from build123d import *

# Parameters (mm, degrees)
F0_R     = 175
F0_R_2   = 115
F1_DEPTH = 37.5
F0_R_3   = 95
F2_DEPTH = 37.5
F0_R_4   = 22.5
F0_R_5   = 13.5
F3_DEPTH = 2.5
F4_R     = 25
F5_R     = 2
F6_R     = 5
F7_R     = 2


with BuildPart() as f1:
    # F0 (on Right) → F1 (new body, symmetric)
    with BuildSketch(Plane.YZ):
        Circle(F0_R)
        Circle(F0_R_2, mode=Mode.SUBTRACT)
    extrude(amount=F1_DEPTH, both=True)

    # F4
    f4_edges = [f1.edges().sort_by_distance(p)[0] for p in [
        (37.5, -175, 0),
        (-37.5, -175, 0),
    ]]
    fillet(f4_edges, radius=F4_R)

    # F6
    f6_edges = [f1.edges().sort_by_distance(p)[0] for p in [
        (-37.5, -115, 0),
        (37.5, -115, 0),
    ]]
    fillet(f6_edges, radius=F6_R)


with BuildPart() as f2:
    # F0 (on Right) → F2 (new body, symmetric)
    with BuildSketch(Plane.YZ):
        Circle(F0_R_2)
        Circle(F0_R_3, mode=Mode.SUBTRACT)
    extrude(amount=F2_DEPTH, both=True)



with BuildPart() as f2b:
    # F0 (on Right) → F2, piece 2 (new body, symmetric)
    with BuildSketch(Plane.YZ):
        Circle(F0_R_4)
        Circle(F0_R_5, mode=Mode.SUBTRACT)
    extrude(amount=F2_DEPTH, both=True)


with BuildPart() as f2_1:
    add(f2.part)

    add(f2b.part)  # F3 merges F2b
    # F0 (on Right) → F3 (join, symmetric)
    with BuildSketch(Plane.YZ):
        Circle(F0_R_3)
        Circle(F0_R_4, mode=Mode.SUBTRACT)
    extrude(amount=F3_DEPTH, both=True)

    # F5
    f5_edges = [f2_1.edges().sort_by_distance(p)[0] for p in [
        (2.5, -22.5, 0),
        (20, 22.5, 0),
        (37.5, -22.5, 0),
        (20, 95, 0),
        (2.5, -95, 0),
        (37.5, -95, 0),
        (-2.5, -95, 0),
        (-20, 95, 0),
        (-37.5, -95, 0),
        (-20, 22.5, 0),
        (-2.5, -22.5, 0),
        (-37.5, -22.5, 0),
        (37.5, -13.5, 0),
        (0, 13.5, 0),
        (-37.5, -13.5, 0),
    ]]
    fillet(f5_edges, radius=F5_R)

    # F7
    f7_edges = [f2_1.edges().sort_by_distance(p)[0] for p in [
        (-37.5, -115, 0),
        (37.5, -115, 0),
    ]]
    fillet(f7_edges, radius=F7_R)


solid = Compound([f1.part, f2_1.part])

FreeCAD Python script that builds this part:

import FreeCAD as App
import Part
import Sketcher


def edges_at(feature, points):
    """Names of the edges that pass closest to the given points."""
    edges = feature.Shape.Edges
    near = lambda p: min(range(len(edges)), key=lambda i: edges[i].distToShape(Part.Vertex(*p))[0])
    return sorted({f"Edge{near(p) + 1}" for p in points})

doc = App.newDocument("Part")
params = doc.addObject("Spreadsheet::Sheet", "Params")
for row, (alias, value) in enumerate([
    ("sketch1_diameter", "350 mm"),
    ("sketch1_diameter2", "230 mm"),
    ("pad1_length", "75 mm"),
    ("fillet_radius", "25 mm"),
    ("fillet2_radius", "5 mm"),
    ("sketch2_diameter", "230 mm"),
    ("sketch2_diameter2", "190 mm"),
    ("pad2_length", "75 mm"),
    ("sketch3_diameter", "45 mm"),
    ("sketch3_diameter2", "27 mm"),
    ("pad3_length", "75 mm"),
    ("sketch4_diameter", "190 mm"),
    ("sketch4_diameter2", "45 mm"),
    ("pad4_length", "5 mm"),
    ("fillet3_radius", "2 mm"),
    ("fillet4_radius", "2 mm"),
], start=1):
    params.set(f"A{row}", alias)
    params.set(f"B{row}", "=" + value)
    params.setAlias(f"B{row}", alias)

body = doc.addObject("PartDesign::Body", "Body")

sketch1 = body.newObject("Sketcher::SketchObject", "Sketch")
sketch1.AttachmentSupport = (doc.getObject("YZ_Plane"), [""])
sketch1.MapMode = "FlatFace"
sketch1.addGeometry([
    Part.Circle(App.Vector(0, 0, 0), App.Vector(0, 0, 1), 175),
    Part.Circle(App.Vector(0, 0, 0), App.Vector(0, 0, 1), 115),
], False)
sketch1.addConstraint([
    Sketcher.Constraint("Coincident", 0, 3, -1, 1),
    Sketcher.Constraint("Coincident", 1, 3, -1, 1),
    Sketcher.Constraint("Diameter", 0, 350.0),
    Sketcher.Constraint("Diameter", 1, 230.0),
])
sketch1.setExpression("Constraints[2]", "Params.sketch1_diameter")
sketch1.setExpression("Constraints[3]", "Params.sketch1_diameter2")
pad1 = body.newObject("PartDesign::Pad", "Pad")
pad1.Profile = sketch1
pad1.setExpression("Length", "Params.pad1_length")
pad1.Midplane = True
doc.recompute()

fillet = body.newObject("PartDesign::Fillet", "Fillet")
fillet.Base = (pad1, edges_at(pad1, [(37.5, -175, 0), (-37.5, -175, 0)]))
fillet.setExpression("Radius", "Params.fillet_radius")
doc.recompute()

fillet2 = body.newObject("PartDesign::Fillet", "Fillet001")
fillet2.Base = (fillet, edges_at(fillet, [(-37.5, -115, 0), (37.5, -115, 0)]))
fillet2.setExpression("Radius", "Params.fillet2_radius")
body2 = doc.addObject("PartDesign::Body", "Body001")

sketch2 = body2.newObject("Sketcher::SketchObject", "Sketch001")
sketch2.AttachmentSupport = (doc.getObject("YZ_Plane001"), [""])
sketch2.MapMode = "FlatFace"
sketch2.addGeometry([
    Part.Circle(App.Vector(0, 0, 0), App.Vector(0, 0, 1), 115),
    Part.Circle(App.Vector(0, 0, 0), App.Vector(0, 0, 1), 95),
], False)
sketch2.addConstraint([
    Sketcher.Constraint("Coincident", 0, 3, -1, 1),
    Sketcher.Constraint("Coincident", 1, 3, -1, 1),
    Sketcher.Constraint("Diameter", 0, 230.0),
    Sketcher.Constraint("Diameter", 1, 190.0),
])
sketch2.setExpression("Constraints[2]", "Params.sketch2_diameter")
sketch2.setExpression("Constraints[3]", "Params.sketch2_diameter2")
pad2 = body2.newObject("PartDesign::Pad", "Pad001")
pad2.Profile = sketch2
pad2.setExpression("Length", "Params.pad2_length")
pad2.Midplane = True
body3 = doc.addObject("PartDesign::Body", "Body002")

sketch3 = body3.newObject("Sketcher::SketchObject", "Sketch002")
sketch3.AttachmentSupport = (doc.getObject("YZ_Plane002"), [""])
sketch3.MapMode = "FlatFace"
sketch3.addGeometry([
    Part.Circle(App.Vector(0, 0, 0), App.Vector(0, 0, 1), 22),
    Part.Circle(App.Vector(0, 0, 0), App.Vector(0, 0, 1), 14),
], False)
sketch3.addConstraint([
    Sketcher.Constraint("Coincident", 0, 3, -1, 1),
    Sketcher.Constraint("Coincident", 1, 3, -1, 1),
    Sketcher.Constraint("Diameter", 0, 45.0),
    Sketcher.Constraint("Diameter", 1, 27.0),
])
sketch3.setExpression("Constraints[2]", "Params.sketch3_diameter")
sketch3.setExpression("Constraints[3]", "Params.sketch3_diameter2")
pad3 = body3.newObject("PartDesign::Pad", "Pad002")
pad3.Profile = sketch3
pad3.setExpression("Length", "Params.pad3_length")
pad3.Midplane = True
body2.AllowCompound = True
doc.recompute()

boolean = body2.newObject("PartDesign::Boolean", "Boolean")
boolean.Type = "Fuse"
boolean.addObjects([body3])

sketch4 = body2.newObject("Sketcher::SketchObject", "Sketch003")
sketch4.AttachmentSupport = (doc.getObject("YZ_Plane001"), [""])
sketch4.MapMode = "FlatFace"
sketch4.addGeometry([
    Part.Circle(App.Vector(0, 0, 0), App.Vector(0, 0, 1), 95),
    Part.Circle(App.Vector(0, 0, 0), App.Vector(0, 0, 1), 22),
], False)
sketch4.addConstraint([
    Sketcher.Constraint("Coincident", 0, 3, -1, 1),
    Sketcher.Constraint("Coincident", 1, 3, -1, 1),
    Sketcher.Constraint("Diameter", 0, 190.0),
    Sketcher.Constraint("Diameter", 1, 45.0),
])
sketch4.setExpression("Constraints[2]", "Params.sketch4_diameter")
sketch4.setExpression("Constraints[3]", "Params.sketch4_diameter2")
pad4 = body2.newObject("PartDesign::Pad", "Pad003")
pad4.Profile = sketch4
pad4.setExpression("Length", "Params.pad4_length")
pad4.Midplane = True
doc.recompute()

fillet3 = body2.newObject("PartDesign::Fillet", "Fillet002")
fillet3.Base = (pad4, edges_at(pad4, [
    (2.5, -22.5, 0),
    (20, 22.5, 0),
    (37.5, -22.5, 0),
    (20, 95, 0),
    (2.5, -95, 0),
    (37.5, -95, 0),
    (-2.5, -95, 0),
    (-20, 95, 0),
    (-37.5, -95, 0),
    (-20, 22.5, 0),
    (-2.5, -22.5, 0),
    (-37.5, -22.5, 0),
    (37.5, -13.5, 0),
    (0, 13.5, 0),
    (-37.5, -13.5, 0),
]))
fillet3.setExpression("Radius", "Params.fillet3_radius")
doc.recompute()

fillet4 = body2.newObject("PartDesign::Fillet", "Fillet003")
fillet4.Base = (fillet3, edges_at(fillet3, [(-37.5, -115, 0), (37.5, -115, 0)]))
fillet4.setExpression("Radius", "Params.fillet4_radius")

doc.recompute()
